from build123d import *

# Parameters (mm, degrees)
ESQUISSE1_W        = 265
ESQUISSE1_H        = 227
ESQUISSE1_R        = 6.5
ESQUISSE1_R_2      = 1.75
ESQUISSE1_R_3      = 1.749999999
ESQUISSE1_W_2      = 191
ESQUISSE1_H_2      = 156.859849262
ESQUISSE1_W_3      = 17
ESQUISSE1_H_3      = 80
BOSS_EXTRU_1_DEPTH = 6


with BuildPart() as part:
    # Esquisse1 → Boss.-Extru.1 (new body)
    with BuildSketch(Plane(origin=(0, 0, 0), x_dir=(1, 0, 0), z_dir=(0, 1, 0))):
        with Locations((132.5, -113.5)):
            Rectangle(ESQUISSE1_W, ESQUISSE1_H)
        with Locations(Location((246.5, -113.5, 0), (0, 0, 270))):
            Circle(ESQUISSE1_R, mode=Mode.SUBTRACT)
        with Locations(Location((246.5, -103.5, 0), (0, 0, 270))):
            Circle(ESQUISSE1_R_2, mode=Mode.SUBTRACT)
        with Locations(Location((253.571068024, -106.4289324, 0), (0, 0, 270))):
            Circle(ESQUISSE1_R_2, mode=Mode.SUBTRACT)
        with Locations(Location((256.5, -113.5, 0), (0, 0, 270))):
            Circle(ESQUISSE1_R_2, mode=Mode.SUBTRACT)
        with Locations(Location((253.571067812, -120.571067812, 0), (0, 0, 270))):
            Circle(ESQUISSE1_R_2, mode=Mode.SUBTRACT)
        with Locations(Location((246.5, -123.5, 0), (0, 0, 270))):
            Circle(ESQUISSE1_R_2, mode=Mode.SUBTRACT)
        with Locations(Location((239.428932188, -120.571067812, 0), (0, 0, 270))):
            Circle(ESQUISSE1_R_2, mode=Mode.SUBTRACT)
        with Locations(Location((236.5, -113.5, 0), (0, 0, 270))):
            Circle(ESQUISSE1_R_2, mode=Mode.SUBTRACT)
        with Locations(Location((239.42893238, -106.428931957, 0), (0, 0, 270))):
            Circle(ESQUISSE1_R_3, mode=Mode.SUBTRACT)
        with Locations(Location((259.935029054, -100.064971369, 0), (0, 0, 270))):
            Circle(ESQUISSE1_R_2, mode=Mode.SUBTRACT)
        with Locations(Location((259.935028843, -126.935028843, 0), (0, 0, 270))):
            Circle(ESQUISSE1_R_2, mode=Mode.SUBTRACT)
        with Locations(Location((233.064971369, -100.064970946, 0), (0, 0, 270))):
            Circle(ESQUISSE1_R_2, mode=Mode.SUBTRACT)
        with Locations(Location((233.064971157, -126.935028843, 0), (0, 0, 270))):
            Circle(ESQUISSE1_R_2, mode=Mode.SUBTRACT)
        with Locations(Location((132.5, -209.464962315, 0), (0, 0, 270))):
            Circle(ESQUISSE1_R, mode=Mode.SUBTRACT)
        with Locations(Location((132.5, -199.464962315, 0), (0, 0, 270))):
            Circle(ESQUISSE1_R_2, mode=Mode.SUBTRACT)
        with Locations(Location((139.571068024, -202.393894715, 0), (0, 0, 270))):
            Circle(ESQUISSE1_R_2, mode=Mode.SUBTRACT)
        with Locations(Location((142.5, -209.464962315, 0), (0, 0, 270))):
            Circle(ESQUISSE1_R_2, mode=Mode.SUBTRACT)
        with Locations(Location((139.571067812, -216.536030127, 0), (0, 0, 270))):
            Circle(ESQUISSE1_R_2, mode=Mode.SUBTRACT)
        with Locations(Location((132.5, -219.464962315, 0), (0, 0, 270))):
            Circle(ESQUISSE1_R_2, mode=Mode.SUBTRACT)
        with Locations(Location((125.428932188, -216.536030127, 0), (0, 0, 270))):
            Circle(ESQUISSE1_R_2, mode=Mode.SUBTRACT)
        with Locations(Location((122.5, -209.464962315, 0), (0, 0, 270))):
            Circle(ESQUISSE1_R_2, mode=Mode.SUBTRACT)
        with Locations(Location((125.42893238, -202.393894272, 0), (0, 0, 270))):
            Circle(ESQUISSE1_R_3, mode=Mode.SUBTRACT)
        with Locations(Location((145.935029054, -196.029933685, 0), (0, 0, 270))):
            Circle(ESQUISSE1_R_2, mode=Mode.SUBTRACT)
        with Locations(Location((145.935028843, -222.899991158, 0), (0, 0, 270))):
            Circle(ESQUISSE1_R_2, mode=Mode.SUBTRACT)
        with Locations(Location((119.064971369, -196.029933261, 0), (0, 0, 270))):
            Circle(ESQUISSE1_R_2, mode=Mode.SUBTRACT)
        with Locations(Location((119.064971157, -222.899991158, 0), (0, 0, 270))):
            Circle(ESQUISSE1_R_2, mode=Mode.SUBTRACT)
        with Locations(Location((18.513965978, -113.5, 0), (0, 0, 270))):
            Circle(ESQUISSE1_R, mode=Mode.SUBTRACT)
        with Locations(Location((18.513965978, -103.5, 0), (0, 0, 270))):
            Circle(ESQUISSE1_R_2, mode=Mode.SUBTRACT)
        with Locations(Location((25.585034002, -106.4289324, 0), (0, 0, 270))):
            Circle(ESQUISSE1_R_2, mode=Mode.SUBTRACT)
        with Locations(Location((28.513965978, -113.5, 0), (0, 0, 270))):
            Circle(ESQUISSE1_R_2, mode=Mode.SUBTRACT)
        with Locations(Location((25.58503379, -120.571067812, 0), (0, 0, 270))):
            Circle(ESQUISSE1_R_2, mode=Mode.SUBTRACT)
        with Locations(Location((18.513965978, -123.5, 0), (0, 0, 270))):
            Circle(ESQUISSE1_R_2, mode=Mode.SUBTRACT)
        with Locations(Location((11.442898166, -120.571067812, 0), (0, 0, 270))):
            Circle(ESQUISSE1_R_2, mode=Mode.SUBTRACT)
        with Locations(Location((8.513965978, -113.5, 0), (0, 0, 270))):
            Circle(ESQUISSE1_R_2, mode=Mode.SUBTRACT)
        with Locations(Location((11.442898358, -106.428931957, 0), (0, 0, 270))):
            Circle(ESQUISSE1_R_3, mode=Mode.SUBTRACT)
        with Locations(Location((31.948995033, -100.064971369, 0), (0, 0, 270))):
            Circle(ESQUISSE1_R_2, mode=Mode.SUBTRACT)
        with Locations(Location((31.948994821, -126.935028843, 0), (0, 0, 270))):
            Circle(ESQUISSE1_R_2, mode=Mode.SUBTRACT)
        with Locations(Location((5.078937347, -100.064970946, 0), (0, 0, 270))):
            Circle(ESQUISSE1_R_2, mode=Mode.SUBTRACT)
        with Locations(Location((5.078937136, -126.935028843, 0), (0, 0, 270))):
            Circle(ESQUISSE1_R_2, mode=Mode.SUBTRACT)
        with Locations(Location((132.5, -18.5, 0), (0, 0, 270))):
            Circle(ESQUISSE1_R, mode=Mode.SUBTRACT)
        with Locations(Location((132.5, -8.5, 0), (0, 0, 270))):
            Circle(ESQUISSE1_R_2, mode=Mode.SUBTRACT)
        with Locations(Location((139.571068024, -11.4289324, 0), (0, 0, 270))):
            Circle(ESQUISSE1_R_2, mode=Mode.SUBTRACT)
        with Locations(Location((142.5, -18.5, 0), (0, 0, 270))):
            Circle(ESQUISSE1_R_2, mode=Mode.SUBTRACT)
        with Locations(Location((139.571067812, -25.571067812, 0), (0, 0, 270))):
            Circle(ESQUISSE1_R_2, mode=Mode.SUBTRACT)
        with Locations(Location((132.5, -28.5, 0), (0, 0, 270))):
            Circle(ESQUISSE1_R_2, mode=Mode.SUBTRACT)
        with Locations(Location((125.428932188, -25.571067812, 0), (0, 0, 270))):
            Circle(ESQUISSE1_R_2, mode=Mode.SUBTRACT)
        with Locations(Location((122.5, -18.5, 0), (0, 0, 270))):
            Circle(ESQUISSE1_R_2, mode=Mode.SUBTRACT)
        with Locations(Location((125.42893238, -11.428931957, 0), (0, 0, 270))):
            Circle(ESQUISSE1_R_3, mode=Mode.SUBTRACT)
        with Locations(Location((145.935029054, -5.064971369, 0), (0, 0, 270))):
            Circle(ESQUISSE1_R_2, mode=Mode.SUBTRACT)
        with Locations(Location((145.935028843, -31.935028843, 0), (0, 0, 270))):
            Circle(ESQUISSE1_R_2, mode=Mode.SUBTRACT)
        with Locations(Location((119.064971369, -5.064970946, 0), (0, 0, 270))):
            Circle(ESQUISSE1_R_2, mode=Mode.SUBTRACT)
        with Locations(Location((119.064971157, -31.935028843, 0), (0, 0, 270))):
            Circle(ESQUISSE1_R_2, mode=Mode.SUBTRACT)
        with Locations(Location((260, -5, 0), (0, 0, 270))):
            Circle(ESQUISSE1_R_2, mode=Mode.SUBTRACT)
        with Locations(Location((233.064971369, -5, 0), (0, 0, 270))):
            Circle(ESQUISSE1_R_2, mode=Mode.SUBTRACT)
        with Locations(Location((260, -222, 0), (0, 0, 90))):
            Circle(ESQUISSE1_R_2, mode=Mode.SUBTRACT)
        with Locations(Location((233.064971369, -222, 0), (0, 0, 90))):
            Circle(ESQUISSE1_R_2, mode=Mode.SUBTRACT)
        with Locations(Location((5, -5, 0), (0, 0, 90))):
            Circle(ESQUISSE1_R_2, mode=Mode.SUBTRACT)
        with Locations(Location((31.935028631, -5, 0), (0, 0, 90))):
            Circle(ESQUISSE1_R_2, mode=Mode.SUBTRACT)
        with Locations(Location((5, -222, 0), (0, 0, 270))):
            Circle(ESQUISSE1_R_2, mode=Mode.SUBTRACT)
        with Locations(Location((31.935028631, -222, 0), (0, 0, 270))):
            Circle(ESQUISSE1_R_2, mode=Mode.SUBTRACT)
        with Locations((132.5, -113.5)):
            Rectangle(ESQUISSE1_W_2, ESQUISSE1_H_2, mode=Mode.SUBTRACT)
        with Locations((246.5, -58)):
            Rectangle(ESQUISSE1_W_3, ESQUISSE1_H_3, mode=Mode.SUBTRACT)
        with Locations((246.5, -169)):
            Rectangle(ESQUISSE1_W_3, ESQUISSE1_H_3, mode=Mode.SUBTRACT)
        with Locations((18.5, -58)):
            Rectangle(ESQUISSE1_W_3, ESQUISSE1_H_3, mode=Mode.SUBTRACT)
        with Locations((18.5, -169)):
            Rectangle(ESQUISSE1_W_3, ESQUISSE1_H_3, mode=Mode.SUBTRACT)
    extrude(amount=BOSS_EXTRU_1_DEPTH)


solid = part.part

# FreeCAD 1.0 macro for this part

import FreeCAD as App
import Part
import Sketcher

doc = App.newDocument("Part")
body = doc.addObject("PartDesign::Body", "Body")

sketch1 = body.newObject("Sketcher::SketchObject", "Sketch")
sketch1.AttachmentSupport = (doc.getObject("XZ_Plane"), [""])
sketch1.MapMode = "FlatFace"
sketch1.addGeometry([
    Part.LineSegment(App.Vector(0, 0, 0), App.Vector(0, 227, 0)),
    Part.LineSegment(App.Vector(0, 227, 0), App.Vector(265, 227, 0)),
    Part.LineSegment(App.Vector(265, 227, 0), App.Vector(265, 0, 0)),
    Part.LineSegment(App.Vector(265, 0, 0), App.Vector(0, 0, 0)),
    Part.Circle(App.Vector(5, 222, 0), App.Vector(0, 0, 1), 1.75),
    Part.Circle(App.Vector(31.935029, 222, 0), App.Vector(0, 0, 1), 1.75),
    Part.Circle(App.Vector(119.064971, 222.899991, 0), App.Vector(0, 0, 1), 1.75),
    Part.Circle(App.Vector(125.428932, 216.53603, 0), App.Vector(0, 0, 1), 1.75),
    Part.Circle(App.Vector(122.5, 209.464962, 0), App.Vector(0, 0, 1), 1.75),
    Part.Circle(App.Vector(125.428932, 202.393894, 0), App.Vector(0, 0, 1), 1.75),
    Part.Circle(App.Vector(119.064971, 196.029933, 0), App.Vector(0, 0, 1), 1.75),
    Part.LineSegment(App.Vector(27, 209, 0), App.Vector(10, 209, 0)),
    Part.LineSegment(App.Vector(10, 209, 0), App.Vector(10, 129, 0)),
    Part.LineSegment(App.Vector(10, 129, 0), App.Vector(27, 129, 0)),
    Part.LineSegment(App.Vector(27, 129, 0), App.Vector(27, 209, 0)),
    Part.Circle(App.Vector(5.078937, 126.935029, 0), App.Vector(0, 0, 1), 1.75),
    Part.Circle(App.Vector(18.513966, 123.5, 0), App.Vector(0, 0, 1), 1.75),
    Part.Circle(App.Vector(11.442898, 120.571068, 0), App.Vector(0, 0, 1), 1.75),
    Part.Circle(App.Vector(31.948995, 126.935029, 0), App.Vector(0, 0, 1), 1.75),
    Part.Circle(App.Vector(25.585034, 120.571068, 0), App.Vector(0, 0, 1), 1.75),
    Part.Circle(App.Vector(132.5, 219.464962, 0), App.Vector(0, 0, 1), 1.75),
    Part.Circle(App.Vector(145.935029, 222.899991, 0), App.Vector(0, 0, 1), 1.75),
    Part.Circle(App.Vector(139.571068, 216.53603, 0), App.Vector(0, 0, 1), 1.75),
    Part.Circle(App.Vector(132.5, 209.464962, 0), App.Vector(0, 0, 1), 6.5),
    Part.Circle(App.Vector(142.5, 209.464962, 0), App.Vector(0, 0, 1), 1.75),
    Part.Circle(App.Vector(139.571068, 202.393895, 0), App.Vector(0, 0, 1), 1.75),
    Part.Circle(App.Vector(132.5, 199.464962, 0), App.Vector(0, 0, 1), 1.75),
    Part.Circle(App.Vector(145.935029, 196.029934, 0), App.Vector(0, 0, 1), 1.75),
    Part.Circle(App.Vector(233.064971, 222, 0), App.Vector(0, 0, 1), 1.75),
    Part.Circle(App.Vector(260, 222, 0), App.Vector(0, 0, 1), 1.75),
    Part.LineSegment(App.Vector(255, 209, 0), App.Vector(238, 209, 0)),
    Part.LineSegment(App.Vector(238, 209, 0), App.Vector(238, 129, 0)),
    Part.LineSegment(App.Vector(238, 129, 0), App.Vector(255, 129, 0)),
    Part.LineSegment(App.Vector(255, 129, 0), App.Vector(255, 209, 0)),
    Part.Circle(App.Vector(233.064971, 126.935029, 0), App.Vector(0, 0, 1), 1.75),
    Part.Circle(App.Vector(239.428932, 120.571068, 0), App.Vector(0, 0, 1), 1.75),
    Part.Circle(App.Vector(246.5, 123.5, 0), App.Vector(0, 0, 1), 1.75),
    Part.Circle(App.Vector(259.935029, 126.935029, 0), App.Vector(0, 0, 1), 1.75),
    Part.Circle(App.Vector(253.571068, 120.571068, 0), App.Vector(0, 0, 1), 1.75),
    Part.Circle(App.Vector(8.513966, 113.5, 0), App.Vector(0, 0, 1), 1.75),
    Part.Circle(App.Vector(18.513966, 113.5, 0), App.Vector(0, 0, 1), 6.5),
    Part.Circle(App.Vector(11.442898, 106.428932, 0), App.Vector(0, 0, 1), 1.75),
    Part.Circle(App.Vector(18.513966, 103.5, 0), App.Vector(0, 0, 1), 1.75),
    Part.Circle(App.Vector(28.513966, 113.5, 0), App.Vector(0, 0, 1), 1.75),
    Part.Circle(App.Vector(25.585034, 106.428932, 0), App.Vector(0, 0, 1), 1.75),
    Part.Circle(App.Vector(5.078937, 100.064971, 0), App.Vector(0, 0, 1), 1.75),
    Part.Circle(App.Vector(31.948995, 100.064971, 0), App.Vector(0, 0, 1), 1.75),
    Part.LineSegment(App.Vector(27, 98, 0), App.Vector(10, 98, 0)),
    Part.LineSegment(App.Vector(10, 98, 0), App.Vector(10, 18, 0)),
    Part.LineSegment(App.Vector(10, 18, 0), App.Vector(27, 18, 0)),
    Part.LineSegment(App.Vector(27, 18, 0), App.Vector(27, 98, 0)),
    Part.Circle(App.Vector(5, 5, 0), App.Vector(0, 0, 1), 1.75),
    Part.Circle(App.Vector(31.935029, 5, 0), App.Vector(0, 0, 1), 1.75),
    Part.Circle(App.Vector(119.064971, 31.935029, 0), App.Vector(0, 0, 1), 1.75),
    Part.Circle(App.Vector(125.428932, 25.571068, 0), App.Vector(0, 0, 1), 1.75),
    Part.Circle(App.Vector(122.5, 18.5, 0), App.Vector(0, 0, 1), 1.75),
    Part.Circle(App.Vector(125.428932, 11.428932, 0), App.Vector(0, 0, 1), 1.75),
    Part.Circle(App.Vector(119.064971, 5.064971, 0), App.Vector(0, 0, 1), 1.75),
    Part.LineSegment(App.Vector(228, 191.929925, 0), App.Vector(37, 191.929925, 0)),
    Part.LineSegment(App.Vector(37, 191.929925, 0), App.Vector(37, 35.070075, 0)),
    Part.LineSegment(App.Vector(37, 35.070075, 0), App.Vector(228, 35.070075, 0)),
    Part.LineSegment(App.Vector(228, 35.070075, 0), App.Vector(228, 191.929925, 0)),
    Part.Circle(App.Vector(236.5, 113.5, 0), App.Vector(0, 0, 1), 1.75),
    Part.Circle(App.Vector(239.428932, 106.428932, 0), App.Vector(0, 0, 1), 1.75),
    Part.Circle(App.Vector(246.5, 113.5, 0), App.Vector(0, 0, 1), 6.5),
    Part.Circle(App.Vector(256.5, 113.5, 0), App.Vector(0, 0, 1), 1.75),
    Part.Circle(App.Vector(253.571068, 106.428932, 0), App.Vector(0, 0, 1), 1.75),
    Part.Circle(App.Vector(246.5, 103.5, 0), App.Vector(0, 0, 1), 1.75),
    Part.Circle(App.Vector(233.064971, 100.064971, 0), App.Vector(0, 0, 1), 1.75),
    Part.Circle(App.Vector(259.935029, 100.064971, 0), App.Vector(0, 0, 1), 1.75),
    Part.Circle(App.Vector(145.935029, 31.935029, 0), App.Vector(0, 0, 1), 1.75),
    Part.Circle(App.Vector(132.5, 28.5, 0), App.Vector(0, 0, 1), 1.75),
    Part.Circle(App.Vector(139.571068, 25.571068, 0), App.Vector(0, 0, 1), 1.75),
    Part.Circle(App.Vector(132.5, 18.5, 0), App.Vector(0, 0, 1), 6.5),
    Part.Circle(App.Vector(142.5, 18.5, 0), App.Vector(0, 0, 1), 1.75),
    Part.Circle(App.Vector(139.571068, 11.428932, 0), App.Vector(0, 0, 1), 1.75),
    Part.Circle(App.Vector(132.5, 8.5, 0), App.Vector(0, 0, 1), 1.75),
    Part.Circle(App.Vector(145.935029, 5.064971, 0), App.Vector(0, 0, 1), 1.75),
    Part.LineSegment(App.Vector(255, 98, 0), App.Vector(238, 98, 0)),
    Part.LineSegment(App.Vector(238, 98, 0), App.Vector(238, 18, 0)),
    Part.LineSegment(App.Vector(238, 18, 0), App.Vector(255, 18, 0)),
    Part.LineSegment(App.Vector(255, 18, 0), App.Vector(255, 98, 0)),
    Part.Circle(App.Vector(233.064971, 5, 0), App.Vector(0, 0, 1), 1.75),
    Part.Circle(App.Vector(260, 5, 0), App.Vector(0, 0, 1), 1.75),
], False)
sketch1.addConstraint([
    Sketcher.Constraint("Coincident", 0, 2, 1, 1),
    Sketcher.Constraint("Coincident", 1, 2, 2, 1),
    Sketcher.Constraint("Coincident", 2, 2, 3, 1),
    Sketcher.Constraint("Coincident", 3, 2, 0, 1),
    Sketcher.Constraint("Coincident", 11, 2, 12, 1),
    Sketcher.Constraint("Coincident", 12, 2, 13, 1),
    Sketcher.Constraint("Coincident", 13, 2, 14, 1),
    Sketcher.Constraint("Coincident", 14, 2, 11, 1),
    Sketcher.Constraint("Coincident", 30, 2, 31, 1),
    Sketcher.Constraint("Coincident", 31, 2, 32, 1),
    Sketcher.Constraint("Coincident", 32, 2, 33, 1),
    Sketcher.Constraint("Coincident", 33, 2, 30, 1),
    Sketcher.Constraint("Coincident", 47, 2, 48, 1),
    Sketcher.Constraint("Coincident", 48, 2, 49, 1),
    Sketcher.Constraint("Coincident", 49, 2, 50, 1),
    Sketcher.Constraint("Coincident", 50, 2, 47, 1),
    Sketcher.Constraint("Coincident", 58, 2, 59, 1),
    Sketcher.Constraint("Coincident", 59, 2, 60, 1),
    Sketcher.Constraint("Coincident", 60, 2, 61, 1),
    Sketcher.Constraint("Coincident", 61, 2, 58, 1),
    Sketcher.Constraint("Coincident", 78, 2, 79, 1),
    Sketcher.Constraint("Coincident", 79, 2, 80, 1),
    Sketcher.Constraint("Coincident", 80, 2, 81, 1),
    Sketcher.Constraint("Coincident", 81, 2, 78, 1),
    Sketcher.Constraint("Vertical", 0),
    Sketcher.Constraint("Horizontal", 1),
    Sketcher.Constraint("Vertical", 2),
    Sketcher.Constraint("Horizontal", 3),
    Sketcher.Constraint("Horizontal", 11),
    Sketcher.Constraint("Vertical", 12),
    Sketcher.Constraint("Horizontal", 13),
    Sketcher.Constraint("Vertical", 14),
    Sketcher.Constraint("Horizontal", 30),
    Sketcher.Constraint("Vertical", 31),
    Sketcher.Constraint("Horizontal", 32),
    Sketcher.Constraint("Vertical", 33),
    Sketcher.Constraint("Horizontal", 47),
    Sketcher.Constraint("Vertical", 48),
    Sketcher.Constraint("Horizontal", 49),
    Sketcher.Constraint("Vertical", 50),
    Sketcher.Constraint("Horizontal", 58),
    Sketcher.Constraint("Vertical", 59),
    Sketcher.Constraint("Horizontal", 60),
    Sketcher.Constraint("Vertical", 61),
    Sketcher.Constraint("Horizontal", 78),
    Sketcher.Constraint("Vertical", 79),
    Sketcher.Constraint("Horizontal", 80),
    Sketcher.Constraint("Vertical", 81),
    Sketcher.Constraint("Coincident", 3, 2, -1, 1),
    Sketcher.Constraint("Equal", 4, 5),
    Sketcher.Constraint("Equal", 5, 6),
    Sketcher.Constraint("Equal", 6, 7),
    Sketcher.Constraint("Equal", 7, 8),
    Sketcher.Constraint("Equal", 8, 9),
    Sketcher.Constraint("Equal", 9, 10),
    Sketcher.Constraint("Equal", 10, 15),
    Sketcher.Constraint("Equal", 15, 16),
    Sketcher.Constraint("Equal", 16, 17),
    Sketcher.Constraint("Equal", 17, 18),
    Sketcher.Constraint("Equal", 18, 19),
    Sketcher.Constraint("Equal", 19, 20),
    Sketcher.Constraint("Equal", 20, 21),
    Sketcher.Constraint("Equal", 21, 22),
    Sketcher.Constraint("Equal", 22, 24),
    Sketcher.Constraint("Equal", 24, 25),
    Sketcher.Constraint("Equal", 25, 26),
    Sketcher.Constraint("Equal", 26, 27),
    Sketcher.Constraint("Equal", 27, 28),
    Sketcher.Constraint("Equal", 28, 29),
    Sketcher.Constraint("Equal", 29, 34),
    Sketcher.Constraint("Equal", 34, 35),
    Sketcher.Constraint("Equal", 35, 36),
    Sketcher.Constraint("Equal", 36, 37),
    Sketcher.Constraint("Equal", 37, 38),
    Sketcher.Constraint("Equal", 38, 39),
    Sketcher.Constraint("Equal", 23, 40),
    Sketcher.Constraint("Equal", 39, 41),
    Sketcher.Constraint("Equal", 41, 42),
    Sketcher.Constraint("Equal", 42, 43),
    Sketcher.Constraint("Equal", 43, 44),
    Sketcher.Constraint("Equal", 44, 45),
    Sketcher.Constraint("Equal", 45, 46),
    Sketcher.Constraint("Equal", 46, 51),
    Sketcher.Constraint("Equal", 51, 52),
    Sketcher.Constraint("Equal", 52, 53),
    Sketcher.Constraint("Equal", 53, 54),
    Sketcher.Constraint("Equal", 54, 55),
    Sketcher.Constraint("Equal", 55, 56),
    Sketcher.Constraint("Equal", 56, 57),
    Sketcher.Constraint("Equal", 57, 62),
    Sketcher.Constraint("Equal", 62, 63),
    Sketcher.Constraint("Equal", 40, 64),
    Sketcher.Constraint("Equal", 63, 65),
    Sketcher.Constraint("Equal", 65, 66),
    Sketcher.Constraint("Equal", 66, 67),
    Sketcher.Constraint("Equal", 67, 68),
    Sketcher.Constraint("Equal", 68, 69),
    Sketcher.Constraint("Equal", 69, 70),
    Sketcher.Constraint("Equal", 70, 71),
    Sketcher.Constraint("Equal", 71, 72),
    Sketcher.Constraint("Equal", 64, 73),
    Sketcher.Constraint("Equal", 72, 74),
    Sketcher.Constraint("Equal", 74, 75),
    Sketcher.Constraint("Equal", 75, 76),
    Sketcher.Constraint("Equal", 76, 77),
    Sketcher.Constraint("Equal", 77, 82),
    Sketcher.Constraint("Equal", 82, 83),
    Sketcher.Constraint("Horizontal", 4, 3, 5, 3),
    Sketcher.Constraint("Horizontal", 15, 3, 18, 3),
    Sketcher.Constraint("Horizontal", 17, 3, 19, 3),
    Sketcher.Constraint("Horizontal", 6, 3, 21, 3),
    Sketcher.Constraint("Horizontal", 7, 3, 22, 3),
    Sketcher.Constraint("Horizontal", 8, 3, 23, 3),
    Sketcher.Constraint("Horizontal", 23, 3, 24, 3),
    Sketcher.Constraint("Horizontal", 9, 3, 25, 3),
    Sketcher.Constraint("Horizontal", 10, 3, 27, 3),
    Sketcher.Constraint("Horizontal", 5, 3, 28, 3),
    Sketcher.Constraint("Horizontal", 28, 3, 29, 3),
    Sketcher.Constraint("Horizontal", 18, 3, 34, 3),
    Sketcher.Constraint("Horizontal", 19, 3, 35, 3),
    Sketcher.Constraint("Horizontal", 16, 3, 36, 3),
    Sketcher.Constraint("Horizontal", 34, 3, 37, 3),
    Sketcher.Constraint("Horizontal", 35, 3, 38, 3),
    Sketcher.Constraint("Horizontal", 39, 3, 40, 3),
    Sketcher.Constraint("Horizontal", 40, 3, 43, 3),
    Sketcher.Constraint("Horizontal", 41, 3, 44, 3),
    Sketcher.Constraint("Horizontal", 45, 3, 46, 3),
    Sketcher.Constraint("Horizontal", 51, 3, 52, 3),
    Sketcher.Constraint("Horizontal", 43, 3, 62, 3),
    Sketcher.Constraint("Horizontal", 44, 3, 63, 3),
    Sketcher.Constraint("Horizontal", 62, 3, 64, 3),
    Sketcher.Constraint("Horizontal", 64, 3, 65, 3),
    Sketcher.Constraint("Horizontal", 63, 3, 66, 3),
    Sketcher.Constraint("Horizontal", 42, 3, 67, 3),
    Sketcher.Constraint("Horizontal", 46, 3, 68, 3),
    Sketcher.Constraint("Horizontal", 68, 3, 69, 3),
    Sketcher.Constraint("Horizontal", 53, 3, 70, 3),
    Sketcher.Constraint("Horizontal", 54, 3, 72, 3),
    Sketcher.Constraint("Horizontal", 55, 3, 73, 3),
    Sketcher.Constraint("Horizontal", 73, 3, 74, 3),
    Sketcher.Constraint("Horizontal", 56, 3, 75, 3),
    Sketcher.Constraint("Horizontal", 57, 3, 77, 3),
    Sketcher.Constraint("Horizontal", 52, 3, 82, 3),
    Sketcher.Constraint("Horizontal", 82, 3, 83, 3),
    Sketcher.Constraint("Horizontal", 14, 2, 30, 2),
    Sketcher.Constraint("Horizontal", 13, 2, 31, 2),
    Sketcher.Constraint("Horizontal", 50, 2, 78, 2),
    Sketcher.Constraint("Horizontal", 49, 2, 79, 2),
    Sketcher.Constraint("Vertical", 7, 3, 9, 3),
    Sketcher.Constraint("Vertical", 6, 3, 10, 3),
    Sketcher.Constraint("Vertical", 20, 3, 23, 3),
    Sketcher.Constraint("Vertical", 22, 3, 25, 3),
    Sketcher.Constraint("Vertical", 23, 3, 26, 3),
    Sketcher.Constraint("Vertical", 21, 3, 27, 3),
    Sketcher.Constraint("Vertical", 28, 3, 34, 3),
    Sketcher.Constraint("Vertical", 16, 3, 40, 3),
    Sketcher.Constraint("Vertical", 17, 3, 41, 3),
    Sketcher.Constraint("Vertical", 40, 3, 42, 3),
    Sketcher.Constraint("Vertical", 19, 3, 44, 3),
    Sketcher.Constraint("Vertical", 15, 3, 45, 3),
    Sketcher.Constraint("Vertical", 18, 3, 46, 3),
    Sketcher.Constraint("Vertical", 4, 3, 51, 3),
    Sketcher.Constraint("Vertical", 5, 3, 52, 3),
    Sketcher.Constraint("Vertical", 10, 3, 53, 3),
    Sketcher.Constraint("Vertical", 9, 3, 54, 3),
    Sketcher.Constraint("Vertical", 8, 3, 55, 3),
    Sketcher.Constraint("Vertical", 54, 3, 56, 3),
    Sketcher.Constraint("Vertical", 53, 3, 57, 3),
    Sketcher.Constraint("Vertical", 35, 3, 63, 3),
    Sketcher.Constraint("Vertical", 36, 3, 64, 3),
    Sketcher.Constraint("Vertical", 38, 3, 66, 3),
    Sketcher.Constraint("Vertical", 64, 3, 67, 3),
    Sketcher.Constraint("Vertical", 34, 3, 68, 3),
    Sketcher.Constraint("Vertical", 37, 3, 69, 3),
    Sketcher.Constraint("Vertical", 27, 3, 70, 3),
    Sketcher.Constraint("Vertical", 26, 3, 71, 3),
    Sketcher.Constraint("Vertical", 25, 3, 72, 3),
    Sketcher.Constraint("Vertical", 71, 3, 73, 3),
    Sketcher.Constraint("Vertical", 24, 3, 74, 3),
    Sketcher.Constraint("Vertical", 72, 3, 75, 3),
    Sketcher.Constraint("Vertical", 73, 3, 76, 3),
    Sketcher.Constraint("Vertical", 70, 3, 77, 3),
    Sketcher.Constraint("Vertical", 68, 3, 82, 3),
    Sketcher.Constraint("Vertical", 29, 3, 83, 3),
    Sketcher.Constraint("Vertical", 12, 2, 47, 2),
    Sketcher.Constraint("Vertical", 14, 2, 49, 2),
    Sketcher.Constraint("Vertical", 31, 2, 78, 2),
    Sketcher.Constraint("Vertical", 33, 2, 80, 2),
    Sketcher.Constraint("Equal", 13, 30),
    Sketcher.Constraint("Equal", 33, 48),
    Sketcher.Constraint("Diameter", 23, 13.0),
    Sketcher.Constraint("Diameter", 4, 3.5),
    Sketcher.Constraint("DistanceX", 1, 1, 1, 2, 265.0),
    Sketcher.Constraint("DistanceX", 11, 2, 11, 1, 17.0),
    Sketcher.Constraint("DistanceX", 58, 2, 58, 1, 191.0),
    Sketcher.Constraint("DistanceY", 0, 1, 0, 2, 227.0),
    Sketcher.Constraint("DistanceY", 12, 2, 12, 1, 80.0),
    Sketcher.Constraint("DistanceX", -1, 1, 4, 3, 5.0),
    Sketcher.Constraint("DistanceY", -1, 1, 4, 3, 222.0),
    Sketcher.Constraint("DistanceX", -1, 1, 29, 3, 260.0),
    Sketcher.Constraint("DistanceY", -1, 1, 51, 3, 5.0),
    Sketcher.Constraint("DistanceX", -1, 1, 11, 2, 10.0),
    Sketcher.Constraint("DistanceY", -1, 1, 11, 2, 209.0),
    Sketcher.Constraint("DistanceX", -1, 1, 30, 2, 238.0),
    Sketcher.Constraint("DistanceY", -1, 1, 47, 2, 98.0),
    Sketcher.Constraint("DistanceX", -1, 1, 58, 2, 37.0),
    Sketcher.Constraint("DistanceX", -1, 1, 8, 3, 122.5),
    Sketcher.Constraint("DistanceY", -1, 1, 16, 3, 123.5),
    Sketcher.Constraint("DistanceX", -1, 1, 20, 3, 132.5),
    Sketcher.Constraint("DistanceX", -1, 1, 24, 3, 142.5),
    Sketcher.Constraint("DistanceX", -1, 1, 36, 3, 246.5),
    Sketcher.Constraint("DistanceY", -1, 1, 39, 3, 113.5),
    Sketcher.Constraint("DistanceY", -1, 1, 42, 3, 103.5),
    Sketcher.Constraint("DistanceY", -1, 1, 55, 3, 18.5),
    Sketcher.Constraint("DistanceX", -1, 1, 62, 3, 236.5),
    Sketcher.Constraint("DistanceX", -1, 1, 65, 3, 256.5),
    Sketcher.Constraint("DistanceY", -1, 1, 71, 3, 28.5),
    Sketcher.Constraint("DistanceY", -1, 1, 76, 3, 8.5),
    Sketcher.Constraint("DistanceY", 59, 2, 59, 1, 156.859849),
    Sketcher.Constraint("DistanceX", -1, 1, 17, 3, 11.442898),
    Sketcher.Constraint("DistanceX", -1, 1, 5, 3, 31.935029),
    Sketcher.Constraint("DistanceX", -1, 1, 6, 3, 119.064971),
    Sketcher.Constraint("DistanceY", -1, 1, 6, 3, 222.899991),
    Sketcher.Constraint("DistanceY", -1, 1, 7, 3, 216.53603),
    Sketcher.Constraint("DistanceY", -1, 1, 15, 3, 126.935029),
    Sketcher.Constraint("DistanceX", -1, 1, 21, 3, 145.935029),
    Sketcher.Constraint("DistanceX", -1, 1, 25, 3, 139.571068),
    Sketcher.Constraint("DistanceX", -1, 1, 28, 3, 233.064971),
    Sketcher.Constraint("DistanceX", -1, 1, 37, 3, 259.935029),
    Sketcher.Constraint("DistanceY", -1, 1, 41, 3, 106.428932),
    Sketcher.Constraint("DistanceY", -1, 1, 45, 3, 100.064971),
    Sketcher.Constraint("DistanceY", -1, 1, 53, 3, 31.935029),
    Sketcher.Constraint("DistanceY", -1, 1, 56, 3, 11.428932),
    Sketcher.Constraint("DistanceY", -1, 1, 57, 3, 5.064971),
    Sketcher.Constraint("DistanceX", -1, 1, 66, 3, 253.571068),
    Sketcher.Constraint("DistanceX", -1, 1, 7, 3, 125.428932),
    Sketcher.Constraint("DistanceY", -1, 1, 8, 3, 209.464962),
    Sketcher.Constraint("DistanceY", -1, 1, 9, 3, 202.393894),
    Sketcher.Constraint("DistanceY", -1, 1, 10, 3, 196.029933),
    Sketcher.Constraint("DistanceX", -1, 1, 15, 3, 5.078937),
    Sketcher.Constraint("DistanceX", -1, 1, 16, 3, 18.513966),
    Sketcher.Constraint("DistanceY", -1, 1, 17, 3, 120.571068),
    Sketcher.Constraint("DistanceX", -1, 1, 18, 3, 31.948995),
    Sketcher.Constraint("DistanceX", -1, 1, 19, 3, 25.585034),
    Sketcher.Constraint("DistanceY", -1, 1, 20, 3, 219.464962),
    Sketcher.Constraint("DistanceY", -1, 1, 26, 3, 199.464962),
    Sketcher.Constraint("DistanceX", -1, 1, 35, 3, 239.428932),
    Sketcher.Constraint("DistanceX", -1, 1, 39, 3, 8.513966),
    Sketcher.Constraint("DistanceX", -1, 1, 43, 3, 28.513966),
    Sketcher.Constraint("DistanceY", -1, 1, 54, 3, 25.571068),
    Sketcher.Constraint("DistanceY", -1, 1, 58, 2, 191.929925),
])
pad1 = body.newObject("PartDesign::Pad", "Pad")
pad1.Profile = sketch1
pad1.Length = 6
pad1.Reversed = True

doc.recompute()
